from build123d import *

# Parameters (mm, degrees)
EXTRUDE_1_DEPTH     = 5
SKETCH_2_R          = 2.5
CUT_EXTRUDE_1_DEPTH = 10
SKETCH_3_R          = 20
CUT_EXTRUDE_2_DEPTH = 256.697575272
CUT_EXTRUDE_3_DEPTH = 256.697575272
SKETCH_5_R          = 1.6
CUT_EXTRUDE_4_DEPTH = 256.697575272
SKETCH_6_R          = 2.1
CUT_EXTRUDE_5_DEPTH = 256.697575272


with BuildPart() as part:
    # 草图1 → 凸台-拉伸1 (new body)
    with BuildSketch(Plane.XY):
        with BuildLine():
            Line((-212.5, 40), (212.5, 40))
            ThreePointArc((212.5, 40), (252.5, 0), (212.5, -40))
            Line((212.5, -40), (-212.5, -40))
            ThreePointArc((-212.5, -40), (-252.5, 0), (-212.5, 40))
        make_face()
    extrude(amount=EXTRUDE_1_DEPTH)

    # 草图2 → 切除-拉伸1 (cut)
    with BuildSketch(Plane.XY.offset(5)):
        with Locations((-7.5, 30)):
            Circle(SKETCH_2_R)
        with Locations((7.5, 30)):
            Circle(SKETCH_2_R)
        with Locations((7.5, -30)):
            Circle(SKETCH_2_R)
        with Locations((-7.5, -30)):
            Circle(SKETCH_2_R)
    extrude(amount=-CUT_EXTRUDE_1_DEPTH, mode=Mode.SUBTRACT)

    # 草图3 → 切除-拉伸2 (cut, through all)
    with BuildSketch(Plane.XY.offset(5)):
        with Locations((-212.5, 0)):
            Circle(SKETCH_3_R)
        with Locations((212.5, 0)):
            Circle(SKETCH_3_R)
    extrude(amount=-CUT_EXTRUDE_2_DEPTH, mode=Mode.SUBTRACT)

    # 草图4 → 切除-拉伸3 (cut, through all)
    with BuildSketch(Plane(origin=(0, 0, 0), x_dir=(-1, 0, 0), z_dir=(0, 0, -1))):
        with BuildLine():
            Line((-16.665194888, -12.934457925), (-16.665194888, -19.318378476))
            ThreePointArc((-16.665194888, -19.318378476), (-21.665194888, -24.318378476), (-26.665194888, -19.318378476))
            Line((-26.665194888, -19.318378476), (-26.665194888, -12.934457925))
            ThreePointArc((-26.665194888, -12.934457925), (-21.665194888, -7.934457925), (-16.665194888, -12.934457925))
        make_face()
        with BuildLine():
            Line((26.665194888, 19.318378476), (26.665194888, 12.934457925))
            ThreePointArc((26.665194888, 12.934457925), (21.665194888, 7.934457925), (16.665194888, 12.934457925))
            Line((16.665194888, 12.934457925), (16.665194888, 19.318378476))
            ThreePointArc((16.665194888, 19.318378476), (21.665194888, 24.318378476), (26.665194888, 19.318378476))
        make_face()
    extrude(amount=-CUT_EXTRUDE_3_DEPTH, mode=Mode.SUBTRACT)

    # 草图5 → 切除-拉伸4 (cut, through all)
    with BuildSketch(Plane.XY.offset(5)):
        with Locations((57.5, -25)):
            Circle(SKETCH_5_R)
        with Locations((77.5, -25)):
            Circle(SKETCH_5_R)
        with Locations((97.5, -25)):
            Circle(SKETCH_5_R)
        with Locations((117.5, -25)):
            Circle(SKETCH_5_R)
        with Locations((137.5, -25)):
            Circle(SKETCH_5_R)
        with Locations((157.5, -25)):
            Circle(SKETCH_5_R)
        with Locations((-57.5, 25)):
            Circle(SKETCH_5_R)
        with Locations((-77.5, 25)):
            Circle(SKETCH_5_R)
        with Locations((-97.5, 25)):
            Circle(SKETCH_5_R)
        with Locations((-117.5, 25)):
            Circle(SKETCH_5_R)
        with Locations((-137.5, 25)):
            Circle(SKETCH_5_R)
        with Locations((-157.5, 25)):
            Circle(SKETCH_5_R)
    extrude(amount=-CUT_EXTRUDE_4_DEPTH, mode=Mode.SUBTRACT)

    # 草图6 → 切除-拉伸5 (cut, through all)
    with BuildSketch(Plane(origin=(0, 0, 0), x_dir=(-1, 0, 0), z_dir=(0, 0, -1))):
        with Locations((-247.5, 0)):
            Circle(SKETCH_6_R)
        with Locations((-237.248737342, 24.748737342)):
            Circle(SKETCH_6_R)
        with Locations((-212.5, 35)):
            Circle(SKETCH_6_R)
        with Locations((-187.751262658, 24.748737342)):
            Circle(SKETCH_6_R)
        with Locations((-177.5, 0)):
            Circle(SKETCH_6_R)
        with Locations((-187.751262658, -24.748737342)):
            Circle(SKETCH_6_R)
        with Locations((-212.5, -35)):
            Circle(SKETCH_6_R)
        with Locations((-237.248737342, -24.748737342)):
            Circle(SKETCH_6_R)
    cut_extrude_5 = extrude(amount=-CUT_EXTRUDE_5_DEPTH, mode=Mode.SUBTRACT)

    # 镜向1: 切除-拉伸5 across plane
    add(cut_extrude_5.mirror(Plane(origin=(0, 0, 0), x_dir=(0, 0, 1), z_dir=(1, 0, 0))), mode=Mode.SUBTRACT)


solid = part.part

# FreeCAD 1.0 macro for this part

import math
import FreeCAD as App
import Part
import Sketcher
from FreeCAD import Vector
Q = App.Units.Quantity

doc = App.newDocument("Part")
body = doc.addObject("PartDesign::Body", "Body")

# Sketch on XY plane
sketch1 = body.newObject("Sketcher::SketchObject", "Sketch")
sketch1.AttachmentSupport = (doc.getObject("XY_Plane"), [""])
sketch1.MapMode = "FlatFace"
sketch1.addGeometry([
    Part.LineSegment(Vector(212, 40, 0), Vector(-212, 40, 0)),
    Part.ArcOfCircle(Part.Circle(Vector(-212, 0, 0), Vector(0, 0, 1), 40), math.radians(90), math.radians(270)),
    Part.LineSegment(Vector(-212, -40, 0), Vector(212, -40, 0)),
    Part.ArcOfCircle(Part.Circle(Vector(212, 0, 0), Vector(0, 0, 1), 40), math.radians(-90), math.radians(90)),
], False)
sketch1.addConstraint([
    Sketcher.Constraint("Tangent", 0, 2, 1, 1),
    Sketcher.Constraint("Tangent", 1, 2, 2, 1),
    Sketcher.Constraint("Tangent", 2, 2, 3, 1),
    Sketcher.Constraint("Tangent", 3, 2, 0, 1),
    Sketcher.Constraint("Horizontal", 0),
    Sketcher.Constraint("Horizontal", 2),
    Sketcher.Constraint("Symmetric", 1, 3, 3, 3, -1, 1),
    Sketcher.Constraint("Radius", 1, Q("40 mm")),
    Sketcher.Constraint("DistanceX", 0, 2, 0, 1, Q("425 mm")),
])
pad1 = body.newObject("PartDesign::Pad", "Pad")
pad1.Profile = sketch1
pad1.Length = 5

# Sketch on XY plane
sketch2 = body.newObject("Sketcher::SketchObject", "Sketch001")
sketch2.AttachmentSupport = (doc.getObject("XY_Plane"), [""])
sketch2.MapMode = "FlatFace"
sketch2.AttachmentOffset = App.Placement(Vector(0, 0, 5), App.Rotation())
sketch2.addGeometry([
    Part.Circle(Vector(-7.5, 30, 0), Vector(0, 0, 1), 2.5),
    Part.Circle(Vector(7.5, 30, 0), Vector(0, 0, 1), 2.5),
    Part.Circle(Vector(7.5, -30, 0), Vector(0, 0, 1), 2.5),
    Part.Circle(Vector(-7.5, -30, 0), Vector(0, 0, 1), 2.5),
], False)
sketch2.addConstraint([
    Sketcher.Constraint("Equal", 0, 1),
    Sketcher.Constraint("Equal", 1, 2),
    Sketcher.Constraint("Equal", 2, 3),
    Sketcher.Constraint("Symmetric", 0, 3, 2, 3, -1, 1),
    Sketcher.Constraint("Symmetric", 1, 3, 3, 3, -1, 1),
    Sketcher.Constraint("Symmetric", 0, 3, 1, 3, -2),
    Sketcher.Constraint("Diameter", 0, Q("5 mm")),
    Sketcher.Constraint("DistanceY", -1, 1, 0, 3, Q("30 mm")),
    Sketcher.Constraint("DistanceX", 0, 3, 1, 3, Q("15 mm")),
])
pocket1 = body.newObject("PartDesign::Pocket", "Pocket")
pocket1.Profile = sketch2
pocket1.Length = 10

# Sketch on XY plane
sketch3 = body.newObject("Sketcher::SketchObject", "Sketch002")
sketch3.AttachmentSupport = (doc.getObject("XY_Plane"), [""])
sketch3.MapMode = "FlatFace"
sketch3.AttachmentOffset = App.Placement(Vector(0, 0, 5), App.Rotation())
sketch3.addGeometry([
    Part.Circle(Vector(-212, 0, 0), Vector(0, 0, 1), 20),
    Part.Circle(Vector(212, 0, 0), Vector(0, 0, 1), 20),
], False)
sketch3.addConstraint([
    Sketcher.Constraint("Equal", 0, 1),
    Sketcher.Constraint("Symmetric", 0, 3, 1, 3, -1, 1),
    Sketcher.Constraint("PointOnObject", 0, 3, -1),
    Sketcher.Constraint("Diameter", 0, Q("40 mm")),
    Sketcher.Constraint("DistanceX", 0, 3, 1, 3, Q("425 mm")),
])
pocket2 = body.newObject("PartDesign::Pocket", "Pocket001")
pocket2.Profile = sketch3
pocket2.Type = "ThroughAll"

# Sketch on XY plane
sketch4 = body.newObject("Sketcher::SketchObject", "Sketch003")
sketch4.AttachmentSupport = (doc.getObject("XY_Plane"), [""])
sketch4.MapMode = "FlatFace"
sketch4.addGeometry([
    Part.LineSegment(Vector(17, -19, 0), Vector(17, -13, 0)),  # 0
    Part.ArcOfCircle(Part.Circle(Vector(22, -13, 0), Vector(0, 0, 1), 5), math.radians(0), math.radians(180)),  # 1
    Part.LineSegment(Vector(27, -13, 0), Vector(27, -19, 0)),  # 2
    Part.ArcOfCircle(Part.Circle(Vector(22, -19, 0), Vector(0, 0, 1), 5), math.radians(180), math.radians(360)),  # 3
    Part.LineSegment(Vector(-27, 13, 0), Vector(-27, 19, 0)),  # 4
    Part.ArcOfCircle(Part.Circle(Vector(-22, 19, 0), Vector(0, 0, 1), 5), math.radians(0), math.radians(180)),  # 5
    Part.LineSegment(Vector(-17, 19, 0), Vector(-17, 13, 0)),  # 6
    Part.ArcOfCircle(Part.Circle(Vector(-22, 13, 0), Vector(0, 0, 1), 5), math.radians(180), math.radians(360)),  # 7
], False)
sketch4.addConstraint([
    Sketcher.Constraint("Tangent", 0, 2, 1, 2),
    Sketcher.Constraint("Tangent", 1, 1, 2, 1),
    Sketcher.Constraint("Tangent", 2, 2, 3, 2),
    Sketcher.Constraint("Tangent", 3, 1, 0, 1),
    Sketcher.Constraint("Tangent", 4, 2, 5, 2),
    Sketcher.Constraint("Tangent", 5, 1, 6, 1),
    Sketcher.Constraint("Tangent", 6, 2, 7, 2),
    Sketcher.Constraint("Tangent", 7, 1, 4, 1),
    Sketcher.Constraint("Vertical", 0),
    Sketcher.Constraint("Vertical", 2),
    Sketcher.Constraint("Vertical", 4),
    Sketcher.Constraint("Vertical", 6),
    Sketcher.Constraint("Equal", 3, 5),
    Sketcher.Constraint("Symmetric", 3, 3, 5, 3, -1, 1),
    Sketcher.Constraint("Equal", 2, 4),
    Sketcher.Constraint("Radius", 1, Q("5 mm")),
    Sketcher.Constraint("DistanceY", 0, 1, 0, 2, Q("6.383921 mm")),
    Sketcher.Constraint("DistanceY", 3, 3, -1, 1, Q("19.318378 mm")),
    Sketcher.Constraint("DistanceX", 5, 3, 1, 3, Q("43.33039 mm")),
])
pocket3 = body.newObject("PartDesign::Pocket", "Pocket002")
pocket3.Profile = sketch4
pocket3.Type = "ThroughAll"
pocket3.Reversed = True

# Sketch on XY plane
sketch5 = body.newObject("Sketcher::SketchObject", "Sketch004")
sketch5.AttachmentSupport = (doc.getObject("XY_Plane"), [""])
sketch5.MapMode = "FlatFace"
sketch5.AttachmentOffset = App.Placement(Vector(0, 0, 5), App.Rotation())
sketch5.addGeometry([
    Part.Circle(Vector(57.5, -25, 0), Vector(0, 0, 1), 1.6),  # 0
    Part.Circle(Vector(77.5, -25, 0), Vector(0, 0, 1), 1.6),  # 1
    Part.Circle(Vector(97.5, -25, 0), Vector(0, 0, 1), 1.6),  # 2
    Part.Circle(Vector(117.5, -25, 0), Vector(0, 0, 1), 1.6),  # 3
    Part.Circle(Vector(137.5, -25, 0), Vector(0, 0, 1), 1.6),  # 4
    Part.Circle(Vector(157.5, -25, 0), Vector(0, 0, 1), 1.6),  # 5
    Part.Circle(Vector(-57.5, 25, 0), Vector(0, 0, 1), 1.6),  # 6
    Part.Circle(Vector(-77.5, 25, 0), Vector(0, 0, 1), 1.6),  # 7
    Part.Circle(Vector(-97.5, 25, 0), Vector(0, 0, 1), 1.6),  # 8
    Part.Circle(Vector(-117.5, 25, 0), Vector(0, 0, 1), 1.6),  # 9
    Part.Circle(Vector(-137.5, 25, 0), Vector(0, 0, 1), 1.6),  # 10
    Part.Circle(Vector(-157.5, 25, 0), Vector(0, 0, 1), 1.6),  # 11
], False)
sketch5.addConstraint([
    Sketcher.Constraint("Equal", 0, 1),
    Sketcher.Constraint("Equal", 1, 2),
    Sketcher.Constraint("Equal", 2, 3),
    Sketcher.Constraint("Equal", 3, 4),
    Sketcher.Constraint("Equal", 4, 5),
    Sketcher.Constraint("Equal", 5, 6),
    Sketcher.Constraint("Equal", 6, 7),
    Sketcher.Constraint("Equal", 7, 8),
    Sketcher.Constraint("Equal", 8, 9),
    Sketcher.Constraint("Equal", 9, 10),
    Sketcher.Constraint("Equal", 10, 11),
    Sketcher.Constraint("Symmetric", 0, 3, 6, 3, -1, 1),
    Sketcher.Constraint("Symmetric", 1, 3, 7, 3, -1, 1),
    Sketcher.Constraint("Symmetric", 2, 3, 8, 3, -1, 1),
    Sketcher.Constraint("Symmetric", 3, 3, 9, 3, -1, 1),
    Sketcher.Constraint("Symmetric", 4, 3, 10, 3, -1, 1),
    Sketcher.Constraint("Symmetric", 5, 3, 11, 3, -1, 1),
    Sketcher.Constraint("Horizontal", 0, 3, 1, 3),
    Sketcher.Constraint("Horizontal", 1, 3, 2, 3),
    Sketcher.Constraint("Horizontal", 2, 3, 3, 3),
    Sketcher.Constraint("Horizontal", 3, 3, 4, 3),
    Sketcher.Constraint("Horizontal", 4, 3, 5, 3),
    Sketcher.Constraint("Diameter", 0, Q("3.2 mm")),
    Sketcher.Constraint("DistanceY", 0, 3, -1, 1, Q("25 mm")),
    Sketcher.Constraint("DistanceX", 0, 3, 1, 3, Q("20 mm")),
    Sketcher.Constraint("DistanceX", 1, 3, 2, 3, Q("20 mm")),
    Sketcher.Constraint("DistanceX", 2, 3, 3, 3, Q("20 mm")),
    Sketcher.Constraint("DistanceX", 3, 3, 4, 3, Q("20 mm")),
    Sketcher.Constraint("DistanceX", 4, 3, 5, 3, Q("20 mm")),
    Sketcher.Constraint("DistanceX", 6, 3, 0, 3, Q("115 mm")),
])
pocket4 = body.newObject("PartDesign::Pocket", "Pocket003")
pocket4.Profile = sketch5
pocket4.Type = "ThroughAll"

# Sketch on XY plane
sketch6 = body.newObject("Sketcher::SketchObject", "Sketch005")
sketch6.AttachmentSupport = (doc.getObject("XY_Plane"), [""])
sketch6.MapMode = "FlatFace"
sketch6.addGeometry([
    Part.Circle(Vector(247.5, 0, 0), Vector(0, 0, 1), 2.1),  # 0
    Part.Circle(Vector(237.2, 24.7, 0), Vector(0, 0, 1), 2.1),  # 1
    Part.Circle(Vector(212.5, 35, 0), Vector(0, 0, 1), 2.1),  # 2
    Part.Circle(Vector(187.8, 24.7, 0), Vector(0, 0, 1), 2.1),  # 3
    Part.Circle(Vector(177.5, 0, 0), Vector(0, 0, 1), 2.1),  # 4
    Part.Circle(Vector(187.8, -24.7, 0), Vector(0, 0, 1), 2.1),  # 5
    Part.Circle(Vector(212.5, -35, 0), Vector(0, 0, 1), 2.1),  # 6
    Part.Circle(Vector(237.2, -24.7, 0), Vector(0, 0, 1), 2.1),  # 7
], False)
sketch6.addConstraint([
    Sketcher.Constraint("Equal", 0, 1),
    Sketcher.Constraint("Equal", 1, 2),
    Sketcher.Constraint("Equal", 2, 3),
    Sketcher.Constraint("Equal", 3, 4),
    Sketcher.Constraint("Equal", 4, 5),
    Sketcher.Constraint("Equal", 5, 6),
    Sketcher.Constraint("Equal", 6, 7),
    Sketcher.Constraint("Symmetric", 3, 3, 5, 3, -1),
    Sketcher.Constraint("Symmetric", 2, 3, 6, 3, -1),
    Sketcher.Constraint("Symmetric", 1, 3, 7, 3, -1),
    Sketcher.Constraint("PointOnObject", 0, 3, -1),
    Sketcher.Constraint("PointOnObject", 4, 3, -1),
    Sketcher.Constraint("Horizontal", 1, 3, 3, 3),
    Sketcher.Constraint("Diameter", 0, Q("4.2 mm")),
    Sketcher.Constraint("DistanceY", -1, 1, 2, 3, Q("35 mm")),
    Sketcher.Constraint("DistanceX", 2, 3, 0, 3, Q("35 mm")),
    Sketcher.Constraint("DistanceX", 4, 3, 2, 3, Q("35 mm")),
    Sketcher.Constraint("DistanceX", -1, 1, 0, 3, Q("247.5 mm")),
    Sketcher.Constraint("DistanceX", -1, 1, 1, 3, Q("237.248737 mm")),
    Sketcher.Constraint("DistanceY", -1, 1, 1, 3, Q("24.748737 mm")),
    Sketcher.Constraint("DistanceX", -1, 1, 3, 3, Q("187.751263 mm")),
])
pocket5 = body.newObject("PartDesign::Pocket", "Pocket004")
pocket5.Profile = sketch6
pocket5.Type = "ThroughAll"
pocket5.Reversed = True
doc.recompute()

mirrored = body.newObject("PartDesign::Mirrored", "Mirrored")
mirrored.Originals = [pocket5]
mirrored.MirrorPlane = (doc.getObject("YZ_Plane"), [""])
body.Tip = mirrored

doc.recompute()
